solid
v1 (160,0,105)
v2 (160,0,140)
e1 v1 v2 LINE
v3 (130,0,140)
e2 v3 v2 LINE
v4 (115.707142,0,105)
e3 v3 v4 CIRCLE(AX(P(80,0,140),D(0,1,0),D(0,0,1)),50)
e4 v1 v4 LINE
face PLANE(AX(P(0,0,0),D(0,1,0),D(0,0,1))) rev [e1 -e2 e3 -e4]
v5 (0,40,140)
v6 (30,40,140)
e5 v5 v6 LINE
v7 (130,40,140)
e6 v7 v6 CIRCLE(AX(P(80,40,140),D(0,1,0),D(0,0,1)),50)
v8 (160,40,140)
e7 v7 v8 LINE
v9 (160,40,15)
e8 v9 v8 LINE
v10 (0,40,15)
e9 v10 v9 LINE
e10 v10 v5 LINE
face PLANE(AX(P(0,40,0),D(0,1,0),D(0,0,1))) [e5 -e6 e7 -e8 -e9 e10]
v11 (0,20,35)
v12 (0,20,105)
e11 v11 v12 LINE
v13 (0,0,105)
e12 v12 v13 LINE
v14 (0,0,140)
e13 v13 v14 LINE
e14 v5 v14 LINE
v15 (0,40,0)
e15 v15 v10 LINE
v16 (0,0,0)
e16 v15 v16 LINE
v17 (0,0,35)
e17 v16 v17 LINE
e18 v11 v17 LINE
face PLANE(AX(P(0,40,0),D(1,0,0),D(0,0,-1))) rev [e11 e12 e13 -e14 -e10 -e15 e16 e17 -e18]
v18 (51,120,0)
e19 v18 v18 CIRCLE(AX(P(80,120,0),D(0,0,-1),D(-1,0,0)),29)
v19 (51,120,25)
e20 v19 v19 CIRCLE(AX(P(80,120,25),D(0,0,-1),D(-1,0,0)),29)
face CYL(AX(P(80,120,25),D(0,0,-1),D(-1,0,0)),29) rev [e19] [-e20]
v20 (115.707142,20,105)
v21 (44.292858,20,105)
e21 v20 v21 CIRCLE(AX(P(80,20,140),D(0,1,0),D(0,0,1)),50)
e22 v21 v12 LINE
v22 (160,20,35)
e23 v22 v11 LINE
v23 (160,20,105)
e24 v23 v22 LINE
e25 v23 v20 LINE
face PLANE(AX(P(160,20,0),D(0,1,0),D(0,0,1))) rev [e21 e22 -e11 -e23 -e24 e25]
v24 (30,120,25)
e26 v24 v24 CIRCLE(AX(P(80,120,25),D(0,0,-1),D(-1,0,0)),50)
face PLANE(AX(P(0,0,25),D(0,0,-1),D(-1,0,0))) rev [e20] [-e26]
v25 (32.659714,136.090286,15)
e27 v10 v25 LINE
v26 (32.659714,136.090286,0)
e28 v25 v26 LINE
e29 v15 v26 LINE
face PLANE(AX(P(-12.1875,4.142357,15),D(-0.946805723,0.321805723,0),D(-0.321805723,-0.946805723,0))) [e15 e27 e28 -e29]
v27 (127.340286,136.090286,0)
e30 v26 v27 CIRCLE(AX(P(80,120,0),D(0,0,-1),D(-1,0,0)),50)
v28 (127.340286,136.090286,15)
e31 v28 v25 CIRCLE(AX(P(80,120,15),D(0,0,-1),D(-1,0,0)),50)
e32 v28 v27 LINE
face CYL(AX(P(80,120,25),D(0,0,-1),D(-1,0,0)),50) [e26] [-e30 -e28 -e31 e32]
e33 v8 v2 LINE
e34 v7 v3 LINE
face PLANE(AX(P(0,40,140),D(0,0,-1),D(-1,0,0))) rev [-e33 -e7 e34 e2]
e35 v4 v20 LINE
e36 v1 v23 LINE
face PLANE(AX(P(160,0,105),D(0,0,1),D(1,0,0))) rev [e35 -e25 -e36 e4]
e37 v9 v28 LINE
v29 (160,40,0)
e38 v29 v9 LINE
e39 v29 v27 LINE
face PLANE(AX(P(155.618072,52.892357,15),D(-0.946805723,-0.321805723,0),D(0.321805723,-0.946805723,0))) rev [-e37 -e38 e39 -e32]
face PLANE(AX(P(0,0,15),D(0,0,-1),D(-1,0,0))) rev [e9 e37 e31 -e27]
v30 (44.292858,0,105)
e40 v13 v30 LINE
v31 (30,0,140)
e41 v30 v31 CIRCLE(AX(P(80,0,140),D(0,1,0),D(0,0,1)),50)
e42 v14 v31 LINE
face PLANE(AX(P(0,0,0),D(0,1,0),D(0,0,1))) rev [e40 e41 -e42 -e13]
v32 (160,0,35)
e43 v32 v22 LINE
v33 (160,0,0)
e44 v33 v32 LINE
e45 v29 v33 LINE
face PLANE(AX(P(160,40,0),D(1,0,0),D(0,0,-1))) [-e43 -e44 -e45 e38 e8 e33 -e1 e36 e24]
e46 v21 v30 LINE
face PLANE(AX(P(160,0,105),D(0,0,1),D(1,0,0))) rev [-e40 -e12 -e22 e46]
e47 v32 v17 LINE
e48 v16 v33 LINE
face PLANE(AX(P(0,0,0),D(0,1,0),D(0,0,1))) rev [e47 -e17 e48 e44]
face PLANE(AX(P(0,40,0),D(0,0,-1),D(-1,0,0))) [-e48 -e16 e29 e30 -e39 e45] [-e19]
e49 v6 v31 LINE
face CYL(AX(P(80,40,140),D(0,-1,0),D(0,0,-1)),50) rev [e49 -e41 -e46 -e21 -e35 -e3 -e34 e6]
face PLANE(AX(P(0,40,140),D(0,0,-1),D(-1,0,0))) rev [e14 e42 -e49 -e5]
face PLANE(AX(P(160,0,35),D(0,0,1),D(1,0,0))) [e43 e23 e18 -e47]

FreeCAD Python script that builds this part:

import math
import FreeCAD as App
import Part
import Sketcher
Q = App.Units.Quantity

doc = App.newDocument("Part")
body = doc.addObject("PartDesign::Body", "Body")

sketch1 = body.newObject("Sketcher::SketchObject", "Sketch")
sketch1.AttachmentSupport = (doc.getObject("XZ_Plane"), [""])
sketch1.MapMode = "FlatFace"
sketch1.addGeometry(Part.LineSegment(App.Vector(160, 0, 0), App.Vector(0, 0, 0)), False)
sketch1.addGeometry(Part.LineSegment(App.Vector(0, 0, 0), App.Vector(0, 140, 0)), False)
sketch1.addGeometry(Part.LineSegment(App.Vector(0, 140, 0), App.Vector(30, 140, 0)), False)
sketch1.addGeometry(Part.ArcOfCircle(Part.Circle(App.Vector(80, 140, 0), App.Vector(0, 0, 1), 50), math.radians(180), math.radians(360)), False)
sketch1.addGeometry(Part.LineSegment(App.Vector(130, 140, 0), App.Vector(160, 140, 0)), False)
sketch1.addGeometry(Part.LineSegment(App.Vector(160, 140, 0), App.Vector(160, 0, 0)), False)
sketch1.addConstraint(Sketcher.Constraint("Coincident", 0, 2, 1, 1))
sketch1.addConstraint(Sketcher.Constraint("Coincident", 1, 2, 2, 1))
sketch1.addConstraint(Sketcher.Constraint("Coincident", 2, 2, 3, 1))
sketch1.addConstraint(Sketcher.Constraint("Coincident", 3, 2, 4, 1))
sketch1.addConstraint(Sketcher.Constraint("Coincident", 4, 2, 5, 1))
sketch1.addConstraint(Sketcher.Constraint("Coincident", 5, 2, 0, 1))
sketch1.addConstraint(Sketcher.Constraint("Horizontal", 0))
sketch1.addConstraint(Sketcher.Constraint("Vertical", 1))
sketch1.addConstraint(Sketcher.Constraint("Horizontal", 2))
sketch1.addConstraint(Sketcher.Constraint("Horizontal", 4))
sketch1.addConstraint(Sketcher.Constraint("Vertical", 5))
sketch1.addConstraint(Sketcher.Constraint("Coincident", 0, 2, -1, 1))
sketch1.addConstraint(Sketcher.Constraint("Horizontal", 3, 3, 1, 2))
sketch1.addConstraint(Sketcher.Constraint("Horizontal", 2, 2, 3, 2))
sketch1.addConstraint(Sketcher.Constraint("Equal", 2, 4))
sketch1.addConstraint(Sketcher.Constraint("Radius", 3, Q("50 mm")))
sketch1.addConstraint(Sketcher.Constraint("DistanceX", 0, 2, 0, 1, Q("160 mm")))
sketch1.addConstraint(Sketcher.Constraint("DistanceY", 1, 1, 1, 2, Q("140 mm")))
pad1 = body.newObject("PartDesign::Pad", "Pad")
pad1.Profile = sketch1
pad1.Length = 40
pad1.Reversed = True

sketch2 = body.newObject("Sketcher::SketchObject", "Sketch001")
sketch2.AttachmentSupport = (doc.getObject("YZ_Plane"), [""])
sketch2.MapMode = "FlatFace"
sketch2.addGeometry(Part.LineSegment(App.Vector(20, 35, 0), App.Vector(0, 35, 0)), False)
sketch2.addGeometry(Part.LineSegment(App.Vector(0, 35, 0), App.Vector(0, 105, 0)), False)
sketch2.addGeometry(Part.LineSegment(App.Vector(0, 105, 0), App.Vector(20, 105, 0)), False)
sketch2.addGeometry(Part.LineSegment(App.Vector(20, 105, 0), App.Vector(20, 35, 0)), False)
sketch2.addConstraint(Sketcher.Constraint("Coincident", 0, 2, 1, 1))
sketch2.addConstraint(Sketcher.Constraint("Coincident", 1, 2, 2, 1))
sketch2.addConstraint(Sketcher.Constraint("Coincident", 2, 2, 3, 1))
sketch2.addConstraint(Sketcher.Constraint("Coincident", 3, 2, 0, 1))
sketch2.addConstraint(Sketcher.Constraint("Horizontal", 0))
sketch2.addConstraint(Sketcher.Constraint("Vertical", 1))
sketch2.addConstraint(Sketcher.Constraint("Horizontal", 2))
sketch2.addConstraint(Sketcher.Constraint("Vertical", 3))
sketch2.addConstraint(Sketcher.Constraint("PointOnObject", 0, 2, -2))
sketch2.addConstraint(Sketcher.Constraint("DistanceX", 0, 2, 0, 1, Q("20 mm")))
sketch2.addConstraint(Sketcher.Constraint("DistanceY", 1, 1, 1, 2, Q("70 mm")))
sketch2.addConstraint(Sketcher.Constraint("DistanceY", -1, 1, 0, 2, Q("35 mm")))
pocket1 = body.newObject("PartDesign::Pocket", "Pocket")
pocket1.Profile = sketch2
pocket1.Type = "ThroughAll"
pocket1.Midplane = True

sketch3 = body.newObject("Sketcher::SketchObject", "Sketch002")
sketch3.AttachmentSupport = (doc.getObject("XY_Plane"), [""])
sketch3.MapMode = "FlatFace"
sketch3.addGeometry(Part.LineSegment(App.Vector(0, 40, 0), App.Vector(33, 136, 0)), False)
sketch3.addGeometry(Part.ArcOfCircle(Part.Circle(App.Vector(80, 120, 0), App.Vector(0, 0, 1), 50), math.radians(161.23), math.radians(180)), False)
sketch3.addGeometry(Part.ArcOfCircle(Part.Circle(App.Vector(80, 120, 0), App.Vector(0, 0, 1), 50), math.radians(-180), math.radians(-90)), False)
sketch3.addGeometry(Part.ArcOfCircle(Part.Circle(App.Vector(80, 120, 0), App.Vector(0, 0, 1), 50), math.radians(-90), math.radians(19)), False)
sketch3.addGeometry(Part.LineSegment(App.Vector(127, 136, 0), App.Vector(160, 40, 0)), False)
sketch3.addGeometry(Part.LineSegment(App.Vector(160, 40, 0), App.Vector(0, 40, 0)), False)
sketch3.addConstraint(Sketcher.Constraint("Tangent", 0, 2, 1, 1))
sketch3.addConstraint(Sketcher.Constraint("Tangent", 1, 2, 2, 1))
sketch3.addConstraint(Sketcher.Constraint("Tangent", 2, 2, 3, 1))
sketch3.addConstraint(Sketcher.Constraint("Tangent", 3, 2, 4, 1))
sketch3.addConstraint(Sketcher.Constraint("Coincident", 4, 2, 5, 1))
sketch3.addConstraint(Sketcher.Constraint("Coincident", 5, 2, 0, 1))
sketch3.addConstraint(Sketcher.Constraint("Horizontal", 5))
sketch3.addConstraint(Sketcher.Constraint("Coincident", 3, 3, 1, 3))
sketch3.addConstraint(Sketcher.Constraint("PointOnObject", 5, 2, -2))
sketch3.addConstraint(Sketcher.Constraint("Horizontal", 3, 3, 1, 2))
sketch3.addConstraint(Sketcher.Constraint("Horizontal", 0, 2, 3, 2))
sketch3.addConstraint(Sketcher.Constraint("Vertical", 3, 3, 2, 2))
sketch3.addConstraint(Sketcher.Constraint("Radius", 1, Q("50 mm")))
sketch3.addConstraint(Sketcher.Constraint("DistanceX", 5, 2, 5, 1, Q("160 mm")))
sketch3.addConstraint(Sketcher.Constraint("DistanceY", -1, 1, 1, 3, Q("120 mm")))
sketch3.addConstraint(Sketcher.Constraint("DistanceY", -1, 1, 4, 2, Q("40 mm")))
pad2 = body.newObject("PartDesign::Pad", "Pad001")
pad2.Profile = sketch3
pad2.Length = 15

sketch4 = body.newObject("Sketcher::SketchObject", "Sketch003")
sketch4.AttachmentSupport = (doc.getObject("XY_Plane"), [""])
sketch4.MapMode = "FlatFace"
sketch4.addGeometry(Part.Circle(App.Vector(80, 120, 0), App.Vector(0, 0, 1), 50), False)
sketch4.addGeometry(Part.Circle(App.Vector(80, 120, 0), App.Vector(0, 0, 1), 29), False)
sketch4.addConstraint(Sketcher.Constraint("Coincident", 1, 3, 0, 3))
sketch4.addConstraint(Sketcher.Constraint("Diameter", 0, Q("100 mm")))
sketch4.addConstraint(Sketcher.Constraint("Diameter", 1, Q("58 mm")))
sketch4.addConstraint(Sketcher.Constraint("DistanceX", -1, 1, 0, 3, Q("80 mm")))
sketch4.addConstraint(Sketcher.Constraint("DistanceY", -1, 1, 0, 3, Q("120 mm")))
pad3 = body.newObject("PartDesign::Pad", "Pad002")
pad3.Profile = sketch4
pad3.Length = 25

doc.recompute()
